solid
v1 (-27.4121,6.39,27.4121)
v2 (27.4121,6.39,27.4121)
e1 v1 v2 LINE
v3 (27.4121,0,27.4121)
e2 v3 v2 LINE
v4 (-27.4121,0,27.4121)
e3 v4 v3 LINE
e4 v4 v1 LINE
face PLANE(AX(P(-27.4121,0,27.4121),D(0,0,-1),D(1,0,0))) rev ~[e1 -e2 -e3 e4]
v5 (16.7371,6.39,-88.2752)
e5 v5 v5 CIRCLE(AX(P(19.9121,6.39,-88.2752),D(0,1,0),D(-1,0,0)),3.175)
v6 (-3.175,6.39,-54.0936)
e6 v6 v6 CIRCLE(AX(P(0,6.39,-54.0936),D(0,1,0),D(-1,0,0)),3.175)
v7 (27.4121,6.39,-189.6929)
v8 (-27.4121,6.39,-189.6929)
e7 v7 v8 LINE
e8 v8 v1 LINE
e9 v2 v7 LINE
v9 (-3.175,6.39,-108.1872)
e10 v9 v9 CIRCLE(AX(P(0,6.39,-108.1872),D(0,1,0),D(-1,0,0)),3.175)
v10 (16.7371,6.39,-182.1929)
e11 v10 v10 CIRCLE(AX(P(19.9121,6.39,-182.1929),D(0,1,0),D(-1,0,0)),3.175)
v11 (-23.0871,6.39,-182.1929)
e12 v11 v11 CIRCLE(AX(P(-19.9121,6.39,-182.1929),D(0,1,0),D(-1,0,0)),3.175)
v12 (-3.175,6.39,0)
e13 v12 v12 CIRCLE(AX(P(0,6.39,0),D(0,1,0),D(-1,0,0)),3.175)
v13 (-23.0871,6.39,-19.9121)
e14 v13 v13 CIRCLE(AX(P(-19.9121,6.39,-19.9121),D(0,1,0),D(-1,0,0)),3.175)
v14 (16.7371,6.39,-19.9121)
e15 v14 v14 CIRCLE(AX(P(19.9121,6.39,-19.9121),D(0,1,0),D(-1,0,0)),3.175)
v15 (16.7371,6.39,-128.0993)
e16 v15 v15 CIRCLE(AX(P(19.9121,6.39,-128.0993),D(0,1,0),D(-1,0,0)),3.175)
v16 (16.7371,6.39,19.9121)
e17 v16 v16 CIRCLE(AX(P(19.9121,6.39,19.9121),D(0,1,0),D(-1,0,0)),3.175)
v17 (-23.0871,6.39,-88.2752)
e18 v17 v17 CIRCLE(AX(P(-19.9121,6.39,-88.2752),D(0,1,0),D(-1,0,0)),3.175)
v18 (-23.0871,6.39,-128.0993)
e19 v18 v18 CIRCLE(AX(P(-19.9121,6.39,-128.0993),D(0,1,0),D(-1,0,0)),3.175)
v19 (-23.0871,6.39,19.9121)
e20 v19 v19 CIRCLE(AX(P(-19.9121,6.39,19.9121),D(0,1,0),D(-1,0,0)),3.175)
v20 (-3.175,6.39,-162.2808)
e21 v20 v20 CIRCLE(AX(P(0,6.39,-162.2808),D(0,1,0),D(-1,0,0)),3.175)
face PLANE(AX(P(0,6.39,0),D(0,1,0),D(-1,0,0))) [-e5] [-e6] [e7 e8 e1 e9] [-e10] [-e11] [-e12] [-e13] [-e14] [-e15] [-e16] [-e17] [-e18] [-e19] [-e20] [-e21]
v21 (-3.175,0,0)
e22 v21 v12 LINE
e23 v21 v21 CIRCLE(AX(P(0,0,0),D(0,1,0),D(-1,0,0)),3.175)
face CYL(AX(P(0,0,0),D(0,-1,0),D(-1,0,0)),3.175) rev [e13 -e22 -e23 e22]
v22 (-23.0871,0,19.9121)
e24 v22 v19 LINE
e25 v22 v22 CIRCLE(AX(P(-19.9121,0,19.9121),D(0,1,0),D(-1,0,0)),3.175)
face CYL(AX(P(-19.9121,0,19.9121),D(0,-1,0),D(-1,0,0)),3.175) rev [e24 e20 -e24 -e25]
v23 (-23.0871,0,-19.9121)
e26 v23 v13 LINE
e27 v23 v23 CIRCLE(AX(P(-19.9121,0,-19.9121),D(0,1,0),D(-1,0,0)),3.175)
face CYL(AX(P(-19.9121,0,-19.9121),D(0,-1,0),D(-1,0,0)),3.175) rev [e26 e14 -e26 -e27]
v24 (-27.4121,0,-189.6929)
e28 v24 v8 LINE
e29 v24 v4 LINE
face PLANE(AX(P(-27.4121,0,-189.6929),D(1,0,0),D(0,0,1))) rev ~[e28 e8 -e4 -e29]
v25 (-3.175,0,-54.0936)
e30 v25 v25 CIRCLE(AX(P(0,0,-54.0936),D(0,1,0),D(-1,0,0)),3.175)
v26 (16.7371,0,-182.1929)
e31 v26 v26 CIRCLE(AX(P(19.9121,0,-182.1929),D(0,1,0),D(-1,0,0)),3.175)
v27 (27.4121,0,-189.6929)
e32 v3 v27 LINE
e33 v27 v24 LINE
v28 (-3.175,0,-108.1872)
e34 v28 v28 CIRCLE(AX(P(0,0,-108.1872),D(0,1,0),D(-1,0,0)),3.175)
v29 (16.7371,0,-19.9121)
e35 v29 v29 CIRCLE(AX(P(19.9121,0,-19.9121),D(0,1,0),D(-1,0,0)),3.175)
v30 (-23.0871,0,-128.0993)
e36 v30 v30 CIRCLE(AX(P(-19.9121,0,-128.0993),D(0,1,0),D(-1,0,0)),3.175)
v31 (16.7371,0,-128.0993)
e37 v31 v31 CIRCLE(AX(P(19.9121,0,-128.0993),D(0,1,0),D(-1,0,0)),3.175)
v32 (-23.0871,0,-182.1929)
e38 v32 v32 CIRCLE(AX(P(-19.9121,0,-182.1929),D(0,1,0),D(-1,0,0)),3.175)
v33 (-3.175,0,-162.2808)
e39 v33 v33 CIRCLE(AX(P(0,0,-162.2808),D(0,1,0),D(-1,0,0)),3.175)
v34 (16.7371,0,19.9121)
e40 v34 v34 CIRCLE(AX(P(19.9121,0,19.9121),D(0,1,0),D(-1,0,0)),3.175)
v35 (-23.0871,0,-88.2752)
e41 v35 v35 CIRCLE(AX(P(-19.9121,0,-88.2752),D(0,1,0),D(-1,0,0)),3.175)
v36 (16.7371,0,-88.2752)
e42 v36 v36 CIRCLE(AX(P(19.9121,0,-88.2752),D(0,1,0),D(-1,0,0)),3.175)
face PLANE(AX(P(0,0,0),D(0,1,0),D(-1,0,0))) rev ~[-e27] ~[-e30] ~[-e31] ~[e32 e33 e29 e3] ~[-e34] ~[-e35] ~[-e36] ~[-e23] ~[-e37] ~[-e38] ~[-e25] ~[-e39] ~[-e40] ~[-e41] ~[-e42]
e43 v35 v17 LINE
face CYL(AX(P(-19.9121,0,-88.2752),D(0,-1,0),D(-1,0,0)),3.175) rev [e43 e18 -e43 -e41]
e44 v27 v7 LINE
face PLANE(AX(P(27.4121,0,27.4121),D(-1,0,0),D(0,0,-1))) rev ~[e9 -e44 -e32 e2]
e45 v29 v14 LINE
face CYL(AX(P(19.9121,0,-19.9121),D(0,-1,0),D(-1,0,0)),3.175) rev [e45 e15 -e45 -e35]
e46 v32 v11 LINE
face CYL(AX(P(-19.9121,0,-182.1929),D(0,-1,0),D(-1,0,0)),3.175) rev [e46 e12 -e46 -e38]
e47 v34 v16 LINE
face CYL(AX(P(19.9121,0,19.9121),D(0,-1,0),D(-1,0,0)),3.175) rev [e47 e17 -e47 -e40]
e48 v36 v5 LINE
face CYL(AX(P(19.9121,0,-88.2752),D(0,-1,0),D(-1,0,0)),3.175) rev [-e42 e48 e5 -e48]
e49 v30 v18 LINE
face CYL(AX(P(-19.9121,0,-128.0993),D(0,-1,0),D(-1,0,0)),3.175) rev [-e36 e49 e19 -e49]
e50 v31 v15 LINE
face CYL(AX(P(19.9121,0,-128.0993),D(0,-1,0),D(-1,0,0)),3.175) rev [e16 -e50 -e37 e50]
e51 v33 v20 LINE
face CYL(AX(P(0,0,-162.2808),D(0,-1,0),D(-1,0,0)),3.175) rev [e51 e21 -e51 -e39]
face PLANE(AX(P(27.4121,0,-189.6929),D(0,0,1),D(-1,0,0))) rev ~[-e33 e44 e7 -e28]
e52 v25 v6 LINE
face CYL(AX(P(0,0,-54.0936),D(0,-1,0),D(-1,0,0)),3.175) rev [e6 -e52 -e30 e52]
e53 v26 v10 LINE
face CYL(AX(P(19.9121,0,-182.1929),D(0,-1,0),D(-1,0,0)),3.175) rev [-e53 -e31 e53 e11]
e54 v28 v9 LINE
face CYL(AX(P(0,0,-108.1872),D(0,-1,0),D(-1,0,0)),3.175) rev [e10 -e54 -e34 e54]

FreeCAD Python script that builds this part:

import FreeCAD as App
import Part
import Sketcher
from FreeCAD import Vector
Q = App.Units.Quantity

doc = App.newDocument("Part")
body = doc.addObject("PartDesign::Body", "Body")

# Sketch on XZ plane
sketch1 = body.newObject("Sketcher::SketchObject", "Sketch")
sketch1.AttachmentSupport = (doc.getObject("XZ_Plane"), [""])
sketch1.MapMode = "FlatFace"
sketch1.addGeometry([
    Part.LineSegment(Vector(-27.4, -189.7, 0), Vector(-27.4, 27.4, 0)),  # 0
    Part.LineSegment(Vector(-27.4, 27.4, 0), Vector(27.4, 27.4, 0)),  # 1
    Part.LineSegment(Vector(27.4, 27.4, 0), Vector(27.4, -189.7, 0)),  # 2
    Part.LineSegment(Vector(27.4, -189.7, 0), Vector(-27.4, -189.7, 0)),  # 3
    Part.Circle(Vector(19.9, -182.2, 0), Vector(0, 0, 1), 3.2),  # 4
    Part.Circle(Vector(19.9, -128.1, 0), Vector(0, 0, 1), 3.2),  # 5
    Part.Circle(Vector(19.9, -88.3, 0), Vector(0, 0, 1), 3.2),  # 6
    Part.Circle(Vector(0, -162.3, 0), Vector(0, 0, 1), 3.2),  # 7
    Part.Circle(Vector(-19.9, -182.2, 0), Vector(0, 0, 1), 3.2),  # 8
    Part.Circle(Vector(0, -108.2, 0), Vector(0, 0, 1), 3.2),  # 9
    Part.Circle(Vector(-19.9, -128.1, 0), Vector(0, 0, 1), 3.2),  # 10
    Part.Circle(Vector(-19.9, -88.3, 0), Vector(0, 0, 1), 3.2),  # 11
    Part.Circle(Vector(19.9, -19.9, 0), Vector(0, 0, 1), 3.2),  # 12
    Part.Circle(Vector(19.9, 19.9, 0), Vector(0, 0, 1), 3.2),  # 13
    Part.Circle(Vector(0, -54.1, 0), Vector(0, 0, 1), 3.2),  # 14
    Part.Circle(Vector(0, 0, 0), Vector(0, 0, 1), 3.2),  # 15
    Part.Circle(Vector(-19.9, -19.9, 0), Vector(0, 0, 1), 3.2),  # 16
    Part.Circle(Vector(-19.9, 19.9, 0), Vector(0, 0, 1), 3.2),  # 17
], False)
sketch1.addConstraint([
    Sketcher.Constraint("Coincident", 0, 2, 1, 1),
    Sketcher.Constraint("Coincident", 1, 2, 2, 1),
    Sketcher.Constraint("Coincident", 2, 2, 3, 1),
    Sketcher.Constraint("Coincident", 3, 2, 0, 1),
    Sketcher.Constraint("Vertical", 0),
    Sketcher.Constraint("Horizontal", 1),
    Sketcher.Constraint("Vertical", 2),
    Sketcher.Constraint("Horizontal", 3),
    Sketcher.Constraint("Coincident", 15, 3, -1, 1),
    Sketcher.Constraint("Equal", 4, 5),
    Sketcher.Constraint("Equal", 5, 6),
    Sketcher.Constraint("Equal", 6, 7),
    Sketcher.Constraint("Equal", 7, 8),
    Sketcher.Constraint("Equal", 8, 9),
    Sketcher.Constraint("Equal", 9, 10),
    Sketcher.Constraint("Equal", 10, 11),
    Sketcher.Constraint("Equal", 11, 12),
    Sketcher.Constraint("Equal", 12, 13),
    Sketcher.Constraint("Equal", 13, 14),
    Sketcher.Constraint("Equal", 14, 15),
    Sketcher.Constraint("Equal", 15, 16),
    Sketcher.Constraint("Equal", 16, 17),
    Sketcher.Constraint("Symmetric", 13, 3, 16, 3, -1, 1),
    Sketcher.Constraint("Symmetric", 12, 3, 17, 3, -1, 1),
    Sketcher.Constraint("Symmetric", 4, 3, 8, 3, -2),
    Sketcher.Constraint("Symmetric", 5, 3, 10, 3, -2),
    Sketcher.Constraint("Symmetric", 6, 3, 11, 3, -2),
    Sketcher.Constraint("Symmetric", 12, 3, 16, 3, -2),
    Sketcher.Constraint("PointOnObject", 7, 3, -2),
    Sketcher.Constraint("PointOnObject", 9, 3, -2),
    Sketcher.Constraint("PointOnObject", 14, 3, -2),
    Sketcher.Constraint("Vertical", 4, 3, 5, 3),
    Sketcher.Constraint("Vertical", 5, 3, 6, 3),
    Sketcher.Constraint("Vertical", 6, 3, 12, 3),
    Sketcher.Constraint("Diameter", 4, Q("0.25 in")),
    Sketcher.Constraint("DistanceY", 14, 3, -1, 1, Q("54.0936 mm")),
    Sketcher.Constraint("DistanceX", 0, 2, -1, 1, Q("27.412 mm")),
    Sketcher.Constraint("DistanceY", -1, 1, 0, 2, Q("27.412 mm")),
    Sketcher.Constraint("DistanceX", -1, 1, 1, 2, Q("27.412 mm")),
    Sketcher.Constraint("DistanceY", 4, 3, 5, 3, Q("54.0936 mm")),
    Sketcher.Constraint("DistanceY", 7, 3, 9, 3, Q("54.0936 mm")),
    Sketcher.Constraint("DistanceY", 9, 3, 14, 3, Q("54.0936 mm")),
    Sketcher.Constraint("DistanceX", 0, 2, 17, 3, Q("7.5 mm")),
    Sketcher.Constraint("DistanceY", 17, 3, 0, 2, Q("7.5 mm")),
    Sketcher.Constraint("DistanceY", 2, 2, 4, 3, Q("7.5 mm")),
    Sketcher.Constraint("DistanceY", 2, 2, 7, 3, Q("27.412 mm")),
    Sketcher.Constraint("DistanceY", 6, 3, -1, 1, Q("3.4754 in")),
])
pad1 = body.newObject("PartDesign::Pad", "Pad")
pad1.Profile = sketch1
pad1.Length = 6.39
pad1.Reversed = True

doc.recompute()
